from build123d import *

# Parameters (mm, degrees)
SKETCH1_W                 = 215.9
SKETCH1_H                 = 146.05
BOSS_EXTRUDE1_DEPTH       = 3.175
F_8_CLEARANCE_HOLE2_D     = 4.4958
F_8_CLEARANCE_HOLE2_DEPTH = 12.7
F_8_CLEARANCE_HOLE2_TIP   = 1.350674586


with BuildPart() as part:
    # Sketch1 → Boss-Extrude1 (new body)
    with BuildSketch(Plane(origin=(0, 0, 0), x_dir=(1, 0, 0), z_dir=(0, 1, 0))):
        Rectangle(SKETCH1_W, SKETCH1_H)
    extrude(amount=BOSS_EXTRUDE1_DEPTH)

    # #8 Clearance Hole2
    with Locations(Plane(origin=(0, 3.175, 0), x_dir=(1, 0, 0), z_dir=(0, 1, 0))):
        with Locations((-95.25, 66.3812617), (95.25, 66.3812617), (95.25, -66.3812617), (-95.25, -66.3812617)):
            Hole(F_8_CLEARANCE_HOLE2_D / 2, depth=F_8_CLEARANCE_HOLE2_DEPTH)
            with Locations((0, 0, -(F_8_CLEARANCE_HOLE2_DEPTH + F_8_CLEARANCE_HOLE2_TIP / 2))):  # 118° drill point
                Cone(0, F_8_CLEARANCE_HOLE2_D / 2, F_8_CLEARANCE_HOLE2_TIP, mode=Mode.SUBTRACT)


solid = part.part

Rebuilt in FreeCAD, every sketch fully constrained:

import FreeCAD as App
import Part
import Sketcher
from FreeCAD import Vector
Q = App.Units.Quantity

doc = App.newDocument("Part")
body = doc.addObject("PartDesign::Body", "Body")

# Sketch on XZ plane
sketch1 = body.newObject("Sketcher::SketchObject", "Sketch")
sketch1.AttachmentSupport = (doc.getObject("XZ_Plane"), [""])
sketch1.MapMode = "FlatFace"
sketch1.addGeometry([
    Part.LineSegment(Vector(-108, -73, 0), Vector(-108, 73, 0)),
    Part.LineSegment(Vector(-108, 73, 0), Vector(108, 73, 0)),
    Part.LineSegment(Vector(108, 73, 0), Vector(108, -73, 0)),
    Part.LineSegment(Vector(108, -73, 0), Vector(-108, -73, 0)),
], False)
sketch1.addConstraint([
    Sketcher.Constraint("Coincident", 0, 2, 1, 1),
    Sketcher.Constraint("Coincident", 1, 2, 2, 1),
    Sketcher.Constraint("Coincident", 2, 2, 3, 1),
    Sketcher.Constraint("Coincident", 3, 2, 0, 1),
    Sketcher.Constraint("Vertical", 0),
    Sketcher.Constraint("Horizontal", 1),
    Sketcher.Constraint("Vertical", 2),
    Sketcher.Constraint("Horizontal", 3),
    Sketcher.Constraint("Symmetric", 0, 2, 2, 2, -1, 1),
    Sketcher.Constraint("DistanceX", 1, 1, 1, 2, Q("8.5 in")),
    Sketcher.Constraint("DistanceY", 0, 1, 0, 2, Q("5.75 in")),
])
pad1 = body.newObject("PartDesign::Pad", "Pad")
pad1.Profile = sketch1
pad1.Length = Q("0.125 in")
pad1.Reversed = True

# Sketch on XZ plane
sketch2 = body.newObject("Sketcher::SketchObject", "Sketch001")
sketch2.AttachmentSupport = (doc.getObject("XZ_Plane"), [""])
sketch2.MapMode = "FlatFace"
sketch2.AttachmentOffset = App.Placement(Vector(0, 0, -0.125 * 25.4), App.Rotation())
sketch2.addGeometry([
    Part.Circle(Vector(-95.2, -66.4, 0), Vector(0, 0, 1), 2.2),
    Part.Circle(Vector(95.2, -66.4, 0), Vector(0, 0, 1), 2.2),
    Part.Circle(Vector(95.2, 66.4, 0), Vector(0, 0, 1), 2.2),
    Part.Circle(Vector(-95.2, 66.4, 0), Vector(0, 0, 1), 2.2),
], False)
sketch2.addConstraint([
    Sketcher.Constraint("Equal", 0, 1),
    Sketcher.Constraint("Equal", 1, 2),
    Sketcher.Constraint("Equal", 2, 3),
    Sketcher.Constraint("Symmetric", 0, 3, 2, 3, -1, 1),
    Sketcher.Constraint("Symmetric", 1, 3, 3, 3, -1, 1),
    Sketcher.Constraint("Symmetric", 0, 3, 1, 3, -2),
    Sketcher.Constraint("Diameter", 0, Q("0.177 in")),
    Sketcher.Constraint("DistanceX", 0, 3, 1, 3, Q("7.5 in")),
    Sketcher.Constraint("DistanceY", 0, 3, -1, 1, 66.381262),
])
doc.recompute()
hole = body.newObject("PartDesign::Hole", "Hole")
hole.Profile = sketch2
hole.ThreadType = "None"
hole.Diameter = Q("0.177 in")
hole.DepthType = "Dimension"
hole.Depth = Q("0.5 in")
hole.DrillPoint = "Angled"
hole.DrillPointAngle = 118
hole.Reversed = True

doc.recompute()
